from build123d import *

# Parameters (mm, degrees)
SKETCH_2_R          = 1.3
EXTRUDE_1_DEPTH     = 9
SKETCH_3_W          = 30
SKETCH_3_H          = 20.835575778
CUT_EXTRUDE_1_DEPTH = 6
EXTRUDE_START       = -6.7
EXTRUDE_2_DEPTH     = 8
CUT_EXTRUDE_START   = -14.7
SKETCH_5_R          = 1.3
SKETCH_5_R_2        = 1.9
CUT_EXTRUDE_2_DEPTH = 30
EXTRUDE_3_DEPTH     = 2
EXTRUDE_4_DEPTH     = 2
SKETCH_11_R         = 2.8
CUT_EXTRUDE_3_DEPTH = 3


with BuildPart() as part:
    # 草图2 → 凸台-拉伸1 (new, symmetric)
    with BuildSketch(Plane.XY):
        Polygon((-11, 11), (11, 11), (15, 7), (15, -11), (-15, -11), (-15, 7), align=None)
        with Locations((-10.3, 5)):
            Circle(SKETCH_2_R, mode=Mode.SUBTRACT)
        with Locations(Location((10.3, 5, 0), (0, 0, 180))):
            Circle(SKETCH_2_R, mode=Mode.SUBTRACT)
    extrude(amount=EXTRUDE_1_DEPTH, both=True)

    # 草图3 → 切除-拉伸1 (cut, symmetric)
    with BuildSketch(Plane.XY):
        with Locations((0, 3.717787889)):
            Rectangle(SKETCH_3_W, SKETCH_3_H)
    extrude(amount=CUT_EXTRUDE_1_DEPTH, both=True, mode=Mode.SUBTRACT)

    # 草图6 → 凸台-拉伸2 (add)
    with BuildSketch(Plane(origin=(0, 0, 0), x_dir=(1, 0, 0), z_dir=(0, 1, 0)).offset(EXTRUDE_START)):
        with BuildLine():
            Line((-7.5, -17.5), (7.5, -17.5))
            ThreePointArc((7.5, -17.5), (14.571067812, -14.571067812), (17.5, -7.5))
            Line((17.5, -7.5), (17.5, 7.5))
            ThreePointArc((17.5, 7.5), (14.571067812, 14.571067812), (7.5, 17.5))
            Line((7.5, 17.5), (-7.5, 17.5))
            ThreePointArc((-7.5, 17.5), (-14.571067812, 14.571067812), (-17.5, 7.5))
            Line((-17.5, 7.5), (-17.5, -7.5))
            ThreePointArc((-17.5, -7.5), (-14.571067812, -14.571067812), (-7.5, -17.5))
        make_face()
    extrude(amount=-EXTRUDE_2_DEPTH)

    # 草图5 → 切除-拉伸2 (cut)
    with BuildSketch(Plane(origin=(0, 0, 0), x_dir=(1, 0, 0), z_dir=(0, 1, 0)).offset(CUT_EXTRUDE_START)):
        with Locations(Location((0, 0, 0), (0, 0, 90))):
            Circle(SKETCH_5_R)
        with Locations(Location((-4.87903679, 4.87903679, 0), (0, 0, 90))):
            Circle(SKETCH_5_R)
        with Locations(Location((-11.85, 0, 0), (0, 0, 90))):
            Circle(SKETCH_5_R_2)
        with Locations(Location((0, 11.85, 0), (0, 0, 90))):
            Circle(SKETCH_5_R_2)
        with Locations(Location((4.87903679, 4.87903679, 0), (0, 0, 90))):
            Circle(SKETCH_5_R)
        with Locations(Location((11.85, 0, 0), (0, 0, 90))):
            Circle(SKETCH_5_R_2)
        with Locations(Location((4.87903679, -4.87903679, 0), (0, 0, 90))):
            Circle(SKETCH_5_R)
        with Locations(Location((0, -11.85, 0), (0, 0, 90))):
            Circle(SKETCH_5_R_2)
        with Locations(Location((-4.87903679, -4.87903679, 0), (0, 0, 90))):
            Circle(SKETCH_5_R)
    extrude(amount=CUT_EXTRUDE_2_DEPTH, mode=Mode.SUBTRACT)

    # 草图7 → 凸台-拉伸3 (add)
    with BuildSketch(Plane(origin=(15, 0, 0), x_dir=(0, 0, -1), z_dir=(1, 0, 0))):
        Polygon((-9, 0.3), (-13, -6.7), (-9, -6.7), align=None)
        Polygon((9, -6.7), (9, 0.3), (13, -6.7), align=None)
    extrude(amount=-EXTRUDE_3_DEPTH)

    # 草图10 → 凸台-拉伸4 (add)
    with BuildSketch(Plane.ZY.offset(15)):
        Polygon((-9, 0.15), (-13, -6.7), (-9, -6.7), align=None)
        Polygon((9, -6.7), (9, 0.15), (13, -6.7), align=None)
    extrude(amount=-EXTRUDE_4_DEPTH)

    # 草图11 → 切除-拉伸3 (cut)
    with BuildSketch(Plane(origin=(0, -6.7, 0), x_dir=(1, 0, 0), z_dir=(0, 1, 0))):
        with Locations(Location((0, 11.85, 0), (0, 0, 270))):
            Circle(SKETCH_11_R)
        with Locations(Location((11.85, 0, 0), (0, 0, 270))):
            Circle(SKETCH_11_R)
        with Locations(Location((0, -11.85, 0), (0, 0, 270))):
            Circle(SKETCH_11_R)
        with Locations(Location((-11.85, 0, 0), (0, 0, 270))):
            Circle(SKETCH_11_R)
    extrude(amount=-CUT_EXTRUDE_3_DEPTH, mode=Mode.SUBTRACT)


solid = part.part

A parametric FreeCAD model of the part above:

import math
import FreeCAD as App
import Part
import Sketcher
Q = App.Units.Quantity

doc = App.newDocument("Part")
body = doc.addObject("PartDesign::Body", "Body")

sketch1 = body.newObject("Sketcher::SketchObject", "Sketch")
sketch1.AttachmentSupport = (doc.getObject("XY_Plane"), [""])
sketch1.MapMode = "FlatFace"
sketch1.addGeometry([
    Part.LineSegment(App.Vector(11, 11, 0), App.Vector(-11, 11, 0)),
    Part.LineSegment(App.Vector(-11, 11, 0), App.Vector(-15, 7, 0)),
    Part.LineSegment(App.Vector(-15, 7, 0), App.Vector(-15, -11, 0)),
    Part.LineSegment(App.Vector(-15, -11, 0), App.Vector(15, -11, 0)),
    Part.LineSegment(App.Vector(15, -11, 0), App.Vector(15, 7, 0)),
    Part.LineSegment(App.Vector(15, 7, 0), App.Vector(11, 11, 0)),
    Part.Circle(App.Vector(10.3, 5, 0), App.Vector(0, 0, 1), 1.3),
    Part.Circle(App.Vector(-10.3, 5, 0), App.Vector(0, 0, 1), 1.3),
], False)
sketch1.addConstraint([
    Sketcher.Constraint("Coincident", 0, 2, 1, 1),
    Sketcher.Constraint("Coincident", 1, 2, 2, 1),
    Sketcher.Constraint("Coincident", 2, 2, 3, 1),
    Sketcher.Constraint("Coincident", 3, 2, 4, 1),
    Sketcher.Constraint("Coincident", 4, 2, 5, 1),
    Sketcher.Constraint("Coincident", 5, 2, 0, 1),
    Sketcher.Constraint("Horizontal", 0),
    Sketcher.Constraint("Vertical", 2),
    Sketcher.Constraint("Horizontal", 3),
    Sketcher.Constraint("Vertical", 4),
    Sketcher.Constraint("Equal", 6, 7),
    Sketcher.Constraint("Symmetric", 6, 3, 7, 3, -2),
    Sketcher.Constraint("Symmetric", 1, 2, 4, 2, -2),
    Sketcher.Constraint("Perpendicular", 1, 5),
    Sketcher.Constraint("Equal", 1, 5),
    Sketcher.Constraint("Diameter", 6, Q("2.6 mm")),
    Sketcher.Constraint("DistanceX", 0, 2, 0, 1, Q("22 mm")),
    Sketcher.Constraint("DistanceX", 3, 1, 3, 2, Q("30 mm")),
    Sketcher.Constraint("DistanceY", 2, 2, 2, 1, Q("18 mm")),
    Sketcher.Constraint("DistanceY", -1, 1, 6, 3, Q("5 mm")),
    Sketcher.Constraint("DistanceY", -1, 1, 0, 2, Q("11 mm")),
    Sketcher.Constraint("DistanceX", -1, 1, 6, 3, Q("10.3 mm")),
])
pad1 = body.newObject("PartDesign::Pad", "Pad")
pad1.Profile = sketch1
pad1.Length = 18
pad1.Midplane = True

sketch2 = body.newObject("Sketcher::SketchObject", "Sketch001")
sketch2.AttachmentSupport = (doc.getObject("XY_Plane"), [""])
sketch2.MapMode = "FlatFace"
sketch2.addGeometry([
    Part.LineSegment(App.Vector(-15, 14.135576, 0), App.Vector(-15, -6.7, 0)),
    Part.LineSegment(App.Vector(-15, -6.7, 0), App.Vector(15, -6.7, 0)),
    Part.LineSegment(App.Vector(15, -6.7, 0), App.Vector(15, 14.135576, 0)),
    Part.LineSegment(App.Vector(15, 14.135576, 0), App.Vector(-15, 14.135576, 0)),
], False)
sketch2.addConstraint([
    Sketcher.Constraint("Coincident", 0, 2, 1, 1),
    Sketcher.Constraint("Coincident", 1, 2, 2, 1),
    Sketcher.Constraint("Coincident", 2, 2, 3, 1),
    Sketcher.Constraint("Coincident", 3, 2, 0, 1),
    Sketcher.Constraint("Vertical", 0),
    Sketcher.Constraint("Horizontal", 1),
    Sketcher.Constraint("Vertical", 2),
    Sketcher.Constraint("Horizontal", 3),
    Sketcher.Constraint("DistanceX", 1, 1, 1, 2, Q("30 mm")),
    Sketcher.Constraint("DistanceX", 0, 2, -1, 1, Q("15 mm")),
    Sketcher.Constraint("DistanceY", 0, 2, -1, 1, Q("6.7 mm")),
    Sketcher.Constraint("DistanceY", 0, 2, 0, 1, Q("20.835576 mm")),
])
pocket1 = body.newObject("PartDesign::Pocket", "Pocket")
pocket1.Profile = sketch2
pocket1.Length = 12
pocket1.Midplane = True

sketch3 = body.newObject("Sketcher::SketchObject", "Sketch002")
sketch3.AttachmentSupport = (doc.getObject("XZ_Plane"), [""])
sketch3.MapMode = "FlatFace"
sketch3.AttachmentOffset = App.Placement(App.Vector(0, 0, 6.7), App.Rotation())
sketch3.addGeometry([
    Part.LineSegment(App.Vector(-7.5, 17.5, 0), App.Vector(7.5, 17.5, 0)),
    Part.ArcOfCircle(Part.Circle(App.Vector(7.5, 7.5, 0), App.Vector(0, 0, 1), 10), math.radians(0), math.radians(90)),
    Part.LineSegment(App.Vector(17.5, 7.5, 0), App.Vector(17.5, -7.5, 0)),
    Part.ArcOfCircle(Part.Circle(App.Vector(7.5, -7.5, 0), App.Vector(0, 0, 1), 10), math.radians(-90), math.radians(0)),
    Part.LineSegment(App.Vector(7.5, -17.5, 0), App.Vector(-7.5, -17.5, 0)),
    Part.ArcOfCircle(Part.Circle(App.Vector(-7.5, -7.5, 0), App.Vector(0, 0, 1), 10), math.radians(180), math.radians(270)),
    Part.LineSegment(App.Vector(-17.5, -7.5, 0), App.Vector(-17.5, 7.5, 0)),
    Part.ArcOfCircle(Part.Circle(App.Vector(-7.5, 7.5, 0), App.Vector(0, 0, 1), 10), math.radians(90), math.radians(180)),
], False)
sketch3.addConstraint([
    Sketcher.Constraint("Tangent", 0, 2, 1, 2),
    Sketcher.Constraint("Tangent", 1, 1, 2, 1),
    Sketcher.Constraint("Tangent", 2, 2, 3, 2),
    Sketcher.Constraint("Tangent", 3, 1, 4, 1),
    Sketcher.Constraint("Tangent", 4, 2, 5, 2),
    Sketcher.Constraint("Tangent", 5, 1, 6, 1),
    Sketcher.Constraint("Tangent", 6, 2, 7, 2),
    Sketcher.Constraint("Tangent", 7, 1, 0, 1),
    Sketcher.Constraint("Horizontal", 0),
    Sketcher.Constraint("Vertical", 2),
    Sketcher.Constraint("Horizontal", 4),
    Sketcher.Constraint("Vertical", 6),
    Sketcher.Constraint("Equal", 1, 3),
    Sketcher.Constraint("Equal", 3, 5),
    Sketcher.Constraint("Equal", 5, 7),
    Sketcher.Constraint("Symmetric", 1, 3, 5, 3, -1, 1),
    Sketcher.Constraint("Equal", 4, 2),
    Sketcher.Constraint("Radius", 1, Q("10 mm")),
    Sketcher.Constraint("DistanceX", 0, 1, 0, 2, Q("15 mm")),
])
pad2 = body.newObject("PartDesign::Pad", "Pad001")
pad2.Profile = sketch3
pad2.Length = 8

sketch4 = body.newObject("Sketcher::SketchObject", "Sketch003")
sketch4.AttachmentSupport = (doc.getObject("XZ_Plane"), [""])
sketch4.MapMode = "FlatFace"
sketch4.AttachmentOffset = App.Placement(App.Vector(0, 0, 14.7), App.Rotation())
sketch4.addGeometry([
    Part.Circle(App.Vector(0, 0, 0), App.Vector(0, 0, 1), 1.3),
    Part.Circle(App.Vector(-4.879037, -4.879037, 0), App.Vector(0, 0, 1), 1.3),
    Part.Circle(App.Vector(-11.85, 0, 0), App.Vector(0, 0, 1), 1.9),
    Part.Circle(App.Vector(0, -11.85, 0), App.Vector(0, 0, 1), 1.9),
    Part.Circle(App.Vector(4.879037, -4.879037, 0), App.Vector(0, 0, 1), 1.3),
    Part.Circle(App.Vector(11.85, 0, 0), App.Vector(0, 0, 1), 1.9),
    Part.Circle(App.Vector(4.879037, 4.879037, 0), App.Vector(0, 0, 1), 1.3),
    Part.Circle(App.Vector(0, 11.85, 0), App.Vector(0, 0, 1), 1.9),
    Part.Circle(App.Vector(-4.879037, 4.879037, 0), App.Vector(0, 0, 1), 1.3),
], False)
sketch4.addConstraint([
    Sketcher.Constraint("Coincident", 0, 3, -1, 1),
    Sketcher.Constraint("Equal", 0, 1),
    Sketcher.Constraint("Equal", 2, 3),
    Sketcher.Constraint("Equal", 1, 4),
    Sketcher.Constraint("Equal", 3, 5),
    Sketcher.Constraint("Equal", 4, 6),
    Sketcher.Constraint("Equal", 5, 7),
    Sketcher.Constraint("Equal", 6, 8),
    Sketcher.Constraint("Symmetric", 2, 3, 5, 3, -1, 1),
    Sketcher.Constraint("Symmetric", 1, 3, 6, 3, -1, 1),
    Sketcher.Constraint("Symmetric", 3, 3, 7, 3, -1, 1),
    Sketcher.Constraint("Symmetric", 4, 3, 8, 3, -1, 1),
    Sketcher.Constraint("Symmetric", 1, 3, 4, 3, -2),
    Sketcher.Constraint("PointOnObject", 2, 3, -1),
    Sketcher.Constraint("PointOnObject", 3, 3, -2),
    Sketcher.Constraint("Diameter", 0, Q("2.6 mm")),
    Sketcher.Constraint("Diameter", 2, Q("3.8 mm")),
    Sketcher.Constraint("DistanceX", 2, 3, 5, 3, Q("23.7 mm")),
    Sketcher.Constraint("DistanceY", 3, 3, -1, 1, Q("11.85 mm")),
    Sketcher.Constraint("DistanceX", 1, 3, -1, 1, Q("4.879037 mm")),
    Sketcher.Constraint("DistanceY", 1, 3, -1, 1, Q("4.879037 mm")),
])
pocket2 = body.newObject("PartDesign::Pocket", "Pocket001")
pocket2.Profile = sketch4
pocket2.Length = 30

sketch5 = body.newObject("Sketcher::SketchObject", "Sketch004")
sketch5.AttachmentSupport = (doc.getObject("YZ_Plane"), [""])
sketch5.MapMode = "FlatFace"
sketch5.AttachmentOffset = App.Placement(App.Vector(0, 0, 15), App.Rotation())
sketch5.addGeometry([
    Part.LineSegment(App.Vector(0.3, 9, 0), App.Vector(-6.7, 13, 0)),
    Part.LineSegment(App.Vector(-6.7, 13, 0), App.Vector(-6.7, 9, 0)),
    Part.LineSegment(App.Vector(-6.7, 9, 0), App.Vector(0.3, 9, 0)),
    Part.LineSegment(App.Vector(0.3, -9, 0), App.Vector(-6.7, -9, 0)),
    Part.LineSegment(App.Vector(-6.7, -9, 0), App.Vector(-6.7, -13, 0)),
    Part.LineSegment(App.Vector(-6.7, -13, 0), App.Vector(0.3, -9, 0)),
], False)
sketch5.addConstraint([
    Sketcher.Constraint("Coincident", 0, 2, 1, 1),
    Sketcher.Constraint("Coincident", 1, 2, 2, 1),
    Sketcher.Constraint("Coincident", 2, 2, 0, 1),
    Sketcher.Constraint("Coincident", 3, 2, 4, 1),
    Sketcher.Constraint("Coincident", 4, 2, 5, 1),
    Sketcher.Constraint("Coincident", 5, 2, 3, 1),
    Sketcher.Constraint("Vertical", 1),
    Sketcher.Constraint("Horizontal", 2),
    Sketcher.Constraint("Horizontal", 3),
    Sketcher.Constraint("Vertical", 4),
    Sketcher.Constraint("Symmetric", 1, 2, 3, 2, -1),
    Sketcher.Constraint("Vertical", 2, 2, 5, 2),
    Sketcher.Constraint("Equal", 1, 4),
    Sketcher.Constraint("DistanceX", 2, 1, 2, 2, Q("7 mm")),
    Sketcher.Constraint("DistanceY", 1, 2, 1, 1, Q("4 mm")),
    Sketcher.Constraint("DistanceY", -1, 1, 0, 2, Q("13 mm")),
    Sketcher.Constraint("DistanceX", 0, 2, -1, 1, Q("6.7 mm")),
])
pad3 = body.newObject("PartDesign::Pad", "Pad002")
pad3.Profile = sketch5
pad3.Length = 2
pad3.Reversed = True

sketch6 = body.newObject("Sketcher::SketchObject", "Sketch005")
sketch6.AttachmentSupport = (doc.getObject("YZ_Plane"), [""])
sketch6.MapMode = "FlatFace"
sketch6.AttachmentOffset = App.Placement(App.Vector(0, 0, -15), App.Rotation())
sketch6.addGeometry([
    Part.LineSegment(App.Vector(0.15, -9, 0), App.Vector(-6.7, -13, 0)),
    Part.LineSegment(App.Vector(-6.7, -13, 0), App.Vector(-6.7, -9, 0)),
    Part.LineSegment(App.Vector(-6.7, -9, 0), App.Vector(0.15, -9, 0)),
    Part.LineSegment(App.Vector(0.15, 9, 0), App.Vector(-6.7, 9, 0)),
    Part.LineSegment(App.Vector(-6.7, 9, 0), App.Vector(-6.7, 13, 0)),
    Part.LineSegment(App.Vector(-6.7, 13, 0), App.Vector(0.15, 9, 0)),
], False)
sketch6.addConstraint([
    Sketcher.Constraint("Coincident", 0, 2, 1, 1),
    Sketcher.Constraint("Coincident", 1, 2, 2, 1),
    Sketcher.Constraint("Coincident", 2, 2, 0, 1),
    Sketcher.Constraint("Coincident", 3, 2, 4, 1),
    Sketcher.Constraint("Coincident", 4, 2, 5, 1),
    Sketcher.Constraint("Coincident", 5, 2, 3, 1),
    Sketcher.Constraint("Vertical", 1),
    Sketcher.Constraint("Horizontal", 2),
    Sketcher.Constraint("Horizontal", 3),
    Sketcher.Constraint("Vertical", 4),
    Sketcher.Constraint("Symmetric", 1, 2, 3, 2, -1),
    Sketcher.Constraint("Vertical", 2, 2, 5, 2),
    Sketcher.Constraint("Equal", 1, 4),
    Sketcher.Constraint("DistanceY", 1, 1, 1, 2, Q("4 mm")),
    Sketcher.Constraint("DistanceY", 0, 2, -1, 1, Q("13 mm")),
    Sketcher.Constraint("DistanceX", 2, 1, 2, 2, Q("6.85 mm")),
    Sketcher.Constraint("DistanceX", 0, 2, -1, 1, Q("6.7 mm")),
])
pad4 = body.newObject("PartDesign::Pad", "Pad003")
pad4.Profile = sketch6
pad4.Length = 2

sketch7 = body.newObject("Sketcher::SketchObject", "Sketch006")
sketch7.AttachmentSupport = (doc.getObject("XZ_Plane"), [""])
sketch7.MapMode = "FlatFace"
sketch7.AttachmentOffset = App.Placement(App.Vector(0, 0, 6.7), App.Rotation())
sketch7.addGeometry([
    Part.Circle(App.Vector(0, -11.85, 0), App.Vector(0, 0, 1), 2.8),
    Part.Circle(App.Vector(11.85, 0, 0), App.Vector(0, 0, 1), 2.8),
    Part.Circle(App.Vector(0, 11.85, 0), App.Vector(0, 0, 1), 2.8),
    Part.Circle(App.Vector(-11.85, 0, 0), App.Vector(0, 0, 1), 2.8),
], False)
sketch7.addConstraint([
    Sketcher.Constraint("Equal", 0, 1),
    Sketcher.Constraint("Equal", 1, 2),
    Sketcher.Constraint("Equal", 2, 3),
    Sketcher.Constraint("Symmetric", 0, 3, 2, 3, -1, 1),
    Sketcher.Constraint("Symmetric", 1, 3, 3, 3, -1, 1),
    Sketcher.Constraint("PointOnObject", 0, 3, -2),
    Sketcher.Constraint("PointOnObject", 1, 3, -1),
    Sketcher.Constraint("Diameter", 0, Q("5.6 mm")),
    Sketcher.Constraint("DistanceY", 0, 3, 2, 3, Q("23.7 mm")),
    Sketcher.Constraint("DistanceX", 3, 3, 1, 3, Q("23.7 mm")),
])
pocket3 = body.newObject("PartDesign::Pocket", "Pocket002")
pocket3.Profile = sketch7
pocket3.Length = 3
pocket3.Reversed = True

doc.recompute()
